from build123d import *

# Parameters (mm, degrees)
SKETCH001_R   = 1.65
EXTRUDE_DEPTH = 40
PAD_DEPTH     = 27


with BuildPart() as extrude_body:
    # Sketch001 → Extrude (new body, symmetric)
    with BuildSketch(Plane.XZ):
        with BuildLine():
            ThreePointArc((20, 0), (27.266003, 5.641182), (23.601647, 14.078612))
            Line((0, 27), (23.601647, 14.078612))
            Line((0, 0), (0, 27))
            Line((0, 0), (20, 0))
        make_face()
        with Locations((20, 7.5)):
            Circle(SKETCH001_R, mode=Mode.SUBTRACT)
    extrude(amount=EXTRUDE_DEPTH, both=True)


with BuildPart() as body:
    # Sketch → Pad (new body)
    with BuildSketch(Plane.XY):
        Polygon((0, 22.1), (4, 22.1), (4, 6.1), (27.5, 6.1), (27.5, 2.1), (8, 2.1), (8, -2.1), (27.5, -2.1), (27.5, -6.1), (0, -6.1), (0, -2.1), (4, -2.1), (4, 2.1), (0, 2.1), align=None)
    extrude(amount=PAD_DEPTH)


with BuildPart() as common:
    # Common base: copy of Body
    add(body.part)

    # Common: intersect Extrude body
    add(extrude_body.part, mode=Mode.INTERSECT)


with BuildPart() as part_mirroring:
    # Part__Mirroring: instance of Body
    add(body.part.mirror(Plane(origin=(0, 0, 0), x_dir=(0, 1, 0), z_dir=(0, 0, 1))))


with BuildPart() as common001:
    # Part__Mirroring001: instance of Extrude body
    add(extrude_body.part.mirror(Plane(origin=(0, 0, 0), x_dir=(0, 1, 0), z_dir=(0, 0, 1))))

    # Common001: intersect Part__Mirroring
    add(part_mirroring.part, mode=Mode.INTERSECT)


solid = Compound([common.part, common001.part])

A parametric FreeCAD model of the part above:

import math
import FreeCAD as App
import Part
import Sketcher

doc = App.newDocument("Part")
body = doc.addObject("PartDesign::Body", "Body")

sketch1 = body.newObject("Sketcher::SketchObject", "Sketch")
sketch1.AttachmentSupport = (doc.getObject("XZ_Plane"), [""])
sketch1.MapMode = "FlatFace"
sketch1.addGeometry([
    Part.ArcOfCircle(Part.Circle(App.Vector(20, 7.5, 0), App.Vector(0, 0, 1), 7.5), math.radians(-90.000003), math.radians(61.300258)),
    Part.LineSegment(App.Vector(23.601647, 14.078612, 0), App.Vector(0, 27, 0)),
    Part.LineSegment(App.Vector(0, 27, 0), App.Vector(0, 0, 0)),
    Part.LineSegment(App.Vector(0, 0, 0), App.Vector(20, 0, 0)),
    Part.Circle(App.Vector(20, 7.5, 0), App.Vector(0, 0, 1), 1.65),
], False)
sketch1.addConstraint([
    Sketcher.Constraint("Tangent", 0, 2, 1, 1),
    Sketcher.Constraint("Coincident", 1, 2, 2, 1),
    Sketcher.Constraint("Coincident", 2, 2, 3, 1),
    Sketcher.Constraint("Tangent", 3, 2, 0, 1),
    Sketcher.Constraint("Vertical", 2),
    Sketcher.Constraint("Horizontal", 3),
    Sketcher.Constraint("Coincident", 2, 2, -1, 1),
    Sketcher.Constraint("Coincident", 4, 3, 0, 3),
    Sketcher.Constraint("Diameter", 4, 3.3),
    Sketcher.Constraint("Radius", 0, 7.5),
    Sketcher.Constraint("DistanceX", 3, 1, 3, 2, 20.0),
    Sketcher.Constraint("DistanceY", 2, 2, 2, 1, 27.0),
])
pad1 = body.newObject("PartDesign::Pad", "Pad")
pad1.Profile = sketch1
pad1.Length = 80
pad1.Midplane = True
body2 = doc.addObject("PartDesign::Body", "Body001")

sketch2 = body2.newObject("Sketcher::SketchObject", "Sketch001")
sketch2.AttachmentSupport = (doc.getObject("XY_Plane001"), [""])
sketch2.MapMode = "FlatFace"
sketch2.addGeometry([
    Part.LineSegment(App.Vector(4, 22.1, 0), App.Vector(0, 22.1, 0)),
    Part.LineSegment(App.Vector(0, 22.1, 0), App.Vector(0, 2.1, 0)),
    Part.LineSegment(App.Vector(0, 2.1, 0), App.Vector(4, 2.1, 0)),
    Part.LineSegment(App.Vector(4, 2.1, 0), App.Vector(4, -2.1, 0)),
    Part.LineSegment(App.Vector(4, -2.1, 0), App.Vector(0, -2.1, 0)),
    Part.LineSegment(App.Vector(0, -2.1, 0), App.Vector(0, -6.1, 0)),
    Part.LineSegment(App.Vector(0, -6.1, 0), App.Vector(27.5, -6.1, 0)),
    Part.LineSegment(App.Vector(27.5, -6.1, 0), App.Vector(27.5, -2.1, 0)),
    Part.LineSegment(App.Vector(27.5, -2.1, 0), App.Vector(8, -2.1, 0)),
    Part.LineSegment(App.Vector(8, -2.1, 0), App.Vector(8, 2.1, 0)),
    Part.LineSegment(App.Vector(8, 2.1, 0), App.Vector(27.5, 2.1, 0)),
    Part.LineSegment(App.Vector(27.5, 2.1, 0), App.Vector(27.5, 6.1, 0)),
    Part.LineSegment(App.Vector(27.5, 6.1, 0), App.Vector(4, 6.1, 0)),
    Part.LineSegment(App.Vector(4, 6.1, 0), App.Vector(4, 22.1, 0)),
], False)
sketch2.addConstraint([
    Sketcher.Constraint("Coincident", 0, 2, 1, 1),
    Sketcher.Constraint("Coincident", 1, 2, 2, 1),
    Sketcher.Constraint("Coincident", 2, 2, 3, 1),
    Sketcher.Constraint("Coincident", 3, 2, 4, 1),
    Sketcher.Constraint("Coincident", 4, 2, 5, 1),
    Sketcher.Constraint("Coincident", 5, 2, 6, 1),
    Sketcher.Constraint("Coincident", 6, 2, 7, 1),
    Sketcher.Constraint("Coincident", 7, 2, 8, 1),
    Sketcher.Constraint("Coincident", 8, 2, 9, 1),
    Sketcher.Constraint("Coincident", 9, 2, 10, 1),
    Sketcher.Constraint("Coincident", 10, 2, 11, 1),
    Sketcher.Constraint("Coincident", 11, 2, 12, 1),
    Sketcher.Constraint("Coincident", 12, 2, 13, 1),
    Sketcher.Constraint("Coincident", 13, 2, 0, 1),
    Sketcher.Constraint("Horizontal", 0),
    Sketcher.Constraint("Vertical", 1),
    Sketcher.Constraint("Horizontal", 2),
    Sketcher.Constraint("Vertical", 3),
    Sketcher.Constraint("Horizontal", 4),
    Sketcher.Constraint("Vertical", 5),
    Sketcher.Constraint("Horizontal", 6),
    Sketcher.Constraint("Vertical", 7),
    Sketcher.Constraint("Horizontal", 8),
    Sketcher.Constraint("Vertical", 9),
    Sketcher.Constraint("Horizontal", 10),
    Sketcher.Constraint("Vertical", 11),
    Sketcher.Constraint("Horizontal", 12),
    Sketcher.Constraint("Vertical", 13),
    Sketcher.Constraint("Symmetric", 1, 2, 4, 2, -1, 1),
    Sketcher.Constraint("Symmetric", 7, 2, 10, 2, -1),
    Sketcher.Constraint("PointOnObject", 0, 2, -2),
    Sketcher.Constraint("Horizontal", 4, 2, 7, 2),
    Sketcher.Constraint("Vertical", 3, 2, 12, 2),
    Sketcher.Constraint("Equal", 4, 5),
    Sketcher.Constraint("Equal", 7, 11),
    Sketcher.Constraint("DistanceX", 0, 2, 0, 1, 4.0),
    Sketcher.Constraint("DistanceY", 1, 2, 1, 1, 20.0),
    Sketcher.Constraint("DistanceX", 6, 1, 6, 2, 27.5),
    Sketcher.Constraint("DistanceX", 8, 2, 8, 1, 19.5),
    Sketcher.Constraint("DistanceY", 3, 2, 3, 1, 4.2),
])
pad2 = body2.newObject("PartDesign::Pad", "Pad001")
pad2.Profile = sketch2
pad2.Length = 27
body3 = doc.addObject("PartDesign::Body", "Body002")
doc.recompute()

body3.BaseFeature = body2
doc.recompute()

body4 = doc.addObject("PartDesign::Body", "Body003")
body4.BaseFeature = body
boolean = body3.newObject("PartDesign::Boolean", "Boolean")
boolean.Type = "Common"
boolean.addObjects([body4])
doc.recompute()
body5 = doc.addObject("PartDesign::Body", "Body004")
doc.recompute()

mirroring = doc.addObject("Part::Mirroring", "Mirroring")
mirroring.Source = body2
mirroring.Base = App.Vector(0, 0, 0)
mirroring.Normal = App.Vector(0, 0, 1)
body5.BaseFeature = mirroring
doc.recompute()
body6 = doc.addObject("PartDesign::Body", "Body005")
doc.recompute()

mirroring2 = doc.addObject("Part::Mirroring", "Mirroring001")
mirroring2.Source = body
mirroring2.Base = App.Vector(0, 0, 0)
mirroring2.Normal = App.Vector(0, 0, 1)
body6.BaseFeature = mirroring2
doc.recompute()

boolean2 = body6.newObject("PartDesign::Boolean", "Boolean001")
boolean2.Type = "Common"
boolean2.addObjects([body5])
mirroring.Visibility = False
mirroring2.Visibility = False

doc.recompute()
